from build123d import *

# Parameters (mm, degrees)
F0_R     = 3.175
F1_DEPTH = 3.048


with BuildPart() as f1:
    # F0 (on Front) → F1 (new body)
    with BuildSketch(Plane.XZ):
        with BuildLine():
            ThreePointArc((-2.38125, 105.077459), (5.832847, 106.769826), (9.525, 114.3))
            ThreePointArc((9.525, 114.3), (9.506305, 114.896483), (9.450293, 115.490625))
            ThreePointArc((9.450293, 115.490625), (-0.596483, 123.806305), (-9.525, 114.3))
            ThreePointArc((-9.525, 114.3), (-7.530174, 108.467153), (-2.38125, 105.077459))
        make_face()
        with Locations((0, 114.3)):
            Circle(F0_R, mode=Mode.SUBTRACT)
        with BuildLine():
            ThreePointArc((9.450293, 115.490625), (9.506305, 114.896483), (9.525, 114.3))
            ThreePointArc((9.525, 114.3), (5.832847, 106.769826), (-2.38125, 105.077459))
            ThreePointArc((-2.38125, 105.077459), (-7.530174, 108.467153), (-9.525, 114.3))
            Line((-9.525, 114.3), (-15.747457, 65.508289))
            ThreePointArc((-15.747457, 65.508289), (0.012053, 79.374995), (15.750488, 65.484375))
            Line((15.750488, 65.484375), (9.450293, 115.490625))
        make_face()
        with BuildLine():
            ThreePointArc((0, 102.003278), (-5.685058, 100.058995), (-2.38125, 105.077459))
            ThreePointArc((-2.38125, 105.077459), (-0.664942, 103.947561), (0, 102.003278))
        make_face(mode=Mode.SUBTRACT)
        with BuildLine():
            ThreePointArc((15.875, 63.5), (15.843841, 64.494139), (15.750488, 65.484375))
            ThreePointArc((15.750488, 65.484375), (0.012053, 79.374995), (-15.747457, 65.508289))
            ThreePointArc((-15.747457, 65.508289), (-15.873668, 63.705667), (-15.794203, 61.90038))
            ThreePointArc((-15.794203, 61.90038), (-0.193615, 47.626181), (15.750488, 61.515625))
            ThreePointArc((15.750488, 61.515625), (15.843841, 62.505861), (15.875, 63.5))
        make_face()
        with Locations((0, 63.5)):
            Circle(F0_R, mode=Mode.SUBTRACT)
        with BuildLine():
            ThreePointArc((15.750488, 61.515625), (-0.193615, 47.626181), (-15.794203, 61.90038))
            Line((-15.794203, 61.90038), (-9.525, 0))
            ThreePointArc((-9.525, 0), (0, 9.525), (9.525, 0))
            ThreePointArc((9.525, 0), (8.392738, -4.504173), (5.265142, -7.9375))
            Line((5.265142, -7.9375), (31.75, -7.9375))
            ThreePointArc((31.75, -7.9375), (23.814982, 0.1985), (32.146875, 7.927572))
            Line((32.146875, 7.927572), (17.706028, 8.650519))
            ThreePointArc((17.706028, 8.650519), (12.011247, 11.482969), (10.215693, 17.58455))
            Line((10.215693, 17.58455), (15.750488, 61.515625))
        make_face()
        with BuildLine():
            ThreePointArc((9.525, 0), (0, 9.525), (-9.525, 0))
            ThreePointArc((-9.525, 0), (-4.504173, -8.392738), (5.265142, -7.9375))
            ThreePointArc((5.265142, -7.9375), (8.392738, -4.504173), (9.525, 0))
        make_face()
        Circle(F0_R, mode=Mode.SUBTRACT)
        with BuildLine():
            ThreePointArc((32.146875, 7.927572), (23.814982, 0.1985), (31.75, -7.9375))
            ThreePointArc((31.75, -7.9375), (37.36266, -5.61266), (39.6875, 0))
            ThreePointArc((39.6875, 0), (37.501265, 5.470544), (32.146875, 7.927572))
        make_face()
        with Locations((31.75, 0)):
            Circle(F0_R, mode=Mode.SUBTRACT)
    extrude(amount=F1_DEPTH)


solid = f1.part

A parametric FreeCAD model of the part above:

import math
import FreeCAD as App
import Part
import Sketcher
from FreeCAD import Vector
Q = App.Units.Quantity

doc = App.newDocument("Part")
body = doc.addObject("PartDesign::Body", "Body")

# Sketch on XZ plane
sketch1 = body.newObject("Sketcher::SketchObject", "Sketch")
sketch1.AttachmentSupport = (doc.getObject("XZ_Plane"), [""])
sketch1.MapMode = "FlatFace"
sketch1.addGeometry([
    Part.ArcOfCircle(Part.Circle(Vector(0, 114.3, 0), Vector(0, 0, 1), 9.525), math.radians(7.180755), math.radians(180)),  # 0
    Part.LineSegment(Vector(-9.525, 114.3, 0), Vector(-15.747457, 65.508289, 0)),  # 1
    Part.ArcOfCircle(Part.Circle(Vector(-0.000025, 63.5, 0), Vector(0, 0, 1), 15.874976), math.radians(172.732231), math.radians(185.783143)),  # 2
    Part.LineSegment(Vector(-15.794203, 61.90038, 0), Vector(-9.525, 0, 0)),  # 3
    Part.ArcOfCircle(Part.Circle(Vector(0, 0, 0), Vector(0, 0, 1), 9.525), math.radians(180), math.radians(303.55731)),  # 4
    Part.LineSegment(Vector(5.265142, -7.9375, 0), Vector(31.75, -7.9375, 0)),  # 5
    Part.ArcOfCircle(Part.Circle(Vector(31.75, 0, 0), Vector(0, 0, 1), 7.9375), math.radians(-89.999998), math.radians(-0.000002)),  # 6
    Part.ArcOfCircle(Part.Circle(Vector(31.749999, -0.000001, 0), Vector(0, 0, 1), 7.937501), math.radians(0.000007), math.radians(87.134009)),  # 7
    Part.LineSegment(Vector(32.146875, 7.927572, 0), Vector(17.706028, 8.650519, 0)),  # 8
    Part.ArcOfCircle(Part.Circle(Vector(18.103537, 16.590774, 0), Vector(0, 0, 1), 7.950199), math.radians(172.819238), math.radians(267.134026)),  # 9
    Part.LineSegment(Vector(10.215693, 17.58455, 0), Vector(15.750488, 61.515625, 0)),  # 10
    Part.ArcOfCircle(Part.Circle(Vector(-0.000171, 63.500013, 0), Vector(0, 0, 1), 15.875171), math.radians(-7.180725), math.radians(-0.000047)),  # 11
    Part.ArcOfCircle(Part.Circle(Vector(-0.000171, 63.499987, 0), Vector(0, 0, 1), 15.875171), math.radians(0.000047), math.radians(7.180725)),  # 12
    Part.LineSegment(Vector(15.750488, 65.484375, 0), Vector(9.450293, 115.490625, 0)),  # 13
    Part.Circle(Vector(0, 0, 0), Vector(0, 0, 1), 3.175),  # 14
    Part.Circle(Vector(31.75, 0, 0), Vector(0, 0, 1), 3.175),  # 15
    Part.Circle(Vector(0, 63.5, 0), Vector(0, 0, 1), 3.175),  # 16
    Part.ArcOfCircle(Part.Circle(Vector(-3.175, 102.003279, 0), Vector(0, 0, 1), 3.175), math.radians(-0.000014), math.radians(75.522494)),  # 17
    Part.ArcOfCircle(Part.Circle(Vector(-3.175, 102.003278, 0), Vector(0, 0, 1), 3.175), math.radians(75.522484), math.radians(359.999996)),  # 18
    Part.Circle(Vector(0, 114.3, 0), Vector(0, 0, 1), 3.175),  # 19
], False)
sketch1.addConstraint([
    Sketcher.Constraint("Coincident", 0, 2, 1, 1),
    Sketcher.Constraint("Coincident", 1, 2, 2, 1),
    Sketcher.Constraint("Coincident", 2, 2, 3, 1),
    Sketcher.Constraint("Coincident", 3, 2, 4, 1),
    Sketcher.Constraint("Coincident", 4, 2, 5, 1),
    Sketcher.Constraint("Coincident", 5, 2, 6, 1),
    Sketcher.Constraint("Coincident", 6, 2, 7, 1),
    Sketcher.Constraint("Coincident", 7, 2, 8, 1),
    Sketcher.Constraint("Coincident", 8, 2, 9, 2),
    Sketcher.Constraint("Coincident", 9, 1, 10, 1),
    Sketcher.Constraint("Coincident", 10, 2, 11, 1),
    Sketcher.Constraint("Coincident", 11, 2, 12, 1),
    Sketcher.Constraint("Coincident", 12, 2, 13, 1),
    Sketcher.Constraint("Coincident", 13, 2, 0, 1),
    Sketcher.Constraint("Coincident", 17, 1, 18, 2),
    Sketcher.Constraint("Coincident", 18, 1, 17, 2),
    Sketcher.Constraint("Horizontal", 5),
    Sketcher.Constraint("Coincident", 4, 3, -1, 1),
    Sketcher.Constraint("Coincident", 14, 3, -1, 1),
    Sketcher.Constraint("Coincident", 7, 3, 6, 3),
    Sketcher.Constraint("Coincident", 15, 3, 6, 3),
    Sketcher.Constraint("Coincident", 19, 3, 0, 3),
    Sketcher.Constraint("PointOnObject", 0, 3, -2),
    Sketcher.Constraint("PointOnObject", 6, 3, -1),
    Sketcher.Constraint("PointOnObject", 16, 3, -2),
    Sketcher.Constraint("PointOnObject", 3, 2, -1),
    Sketcher.Constraint("PointOnObject", 6, 2, -1),
    Sketcher.Constraint("PointOnObject", 17, 1, -2),
    Sketcher.Constraint("Diameter", 14, Q("0.25 in")),
    Sketcher.Constraint("Diameter", 15, Q("0.25 in")),
    Sketcher.Constraint("Diameter", 16, Q("0.25 in")),
    Sketcher.Constraint("Diameter", 19, Q("0.25 in")),
    Sketcher.Constraint("Radius", 0, Q("0.375 in")),
    Sketcher.Constraint("Radius", 4, Q("0.375 in")),
    Sketcher.Constraint("Radius", 6, Q("0.3125 in")),
    Sketcher.Constraint("Radius", 9, Q("0.313 in")),
    Sketcher.Constraint("Radius", 17, Q("0.125 in")),
    Sketcher.Constraint("Radius", 18, Q("0.125 in")),
    Sketcher.Constraint("DistanceY", 2, 3, 0, 3, Q("2 in")),
    Sketcher.Constraint("DistanceY", 16, 3, 0, 3, Q("2 in")),
    Sketcher.Constraint("DistanceY", -1, 1, 0, 3, Q("4.5 in")),
    Sketcher.Constraint("DistanceY", -1, 1, 0, 2, Q("4.5 in")),
    Sketcher.Constraint("DistanceY", -1, 1, 11, 2, Q("2.5 in")),
    Sketcher.Constraint("DistanceX", -1, 1, 6, 3, Q("1.25 in")),
    Sketcher.Constraint("DistanceX", -1, 1, 5, 2, Q("1.25 in")),
    Sketcher.Constraint("DistanceX", -1, 1, 7, 2, Q("1.265625 in")),
    Sketcher.Constraint("DistanceY", -1, 1, 10, 2, Q("2.421875 in")),
    Sketcher.Constraint("DistanceX", -1, 1, 11, 2, Q("0.625 in")),
    Sketcher.Constraint("DistanceY", -1, 1, 12, 2, Q("2.578125 in")),
    Sketcher.Constraint("DistanceY", -1, 1, 13, 2, Q("4.546875 in")),
    Sketcher.Constraint("DistanceX", 18, 1, -1, 1, Q("0.09375 in")),
    Sketcher.Constraint("Radius", 11, Q("15.875171 mm")),
    Sketcher.Constraint("Radius", 12, Q("15.875171 mm")),
    Sketcher.Constraint("Radius", 2, Q("15.874976 mm")),
    Sketcher.Constraint("DistanceY", 12, 3, 1, 2, Q("2.008302 mm")),
    Sketcher.Constraint("Distance", 1, Q("49.186889 mm")),
    Sketcher.Constraint("Distance", 3, Q("62.217039 mm")),
    Sketcher.Constraint("Distance", 8, Q("14.458932 mm")),
    Sketcher.Constraint("Distance", 10, Q("44.278362 mm")),
    Sketcher.Constraint("DistanceY", -1, 1, 17, 3, Q("102.003279 mm")),
    Sketcher.Constraint("DistanceY", -1, 1, 1, 2, Q("65.508289 mm")),
    Sketcher.Constraint("DistanceX", -1, 1, 8, 2, Q("17.706028 mm")),
    Sketcher.Constraint("DistanceY", -1, 1, 9, 1, Q("17.58455 mm")),
    Sketcher.Constraint("DistanceX", -1, 1, 10, 2, Q("15.750488 mm")),
    Sketcher.Constraint("DistanceY", 17, 1, 18, 1, Q("3.074181 mm")),
])
pad1 = body.newObject("PartDesign::Pad", "Pad")
pad1.Profile = sketch1
pad1.Length = Q("0.12 in")

doc.recompute()
